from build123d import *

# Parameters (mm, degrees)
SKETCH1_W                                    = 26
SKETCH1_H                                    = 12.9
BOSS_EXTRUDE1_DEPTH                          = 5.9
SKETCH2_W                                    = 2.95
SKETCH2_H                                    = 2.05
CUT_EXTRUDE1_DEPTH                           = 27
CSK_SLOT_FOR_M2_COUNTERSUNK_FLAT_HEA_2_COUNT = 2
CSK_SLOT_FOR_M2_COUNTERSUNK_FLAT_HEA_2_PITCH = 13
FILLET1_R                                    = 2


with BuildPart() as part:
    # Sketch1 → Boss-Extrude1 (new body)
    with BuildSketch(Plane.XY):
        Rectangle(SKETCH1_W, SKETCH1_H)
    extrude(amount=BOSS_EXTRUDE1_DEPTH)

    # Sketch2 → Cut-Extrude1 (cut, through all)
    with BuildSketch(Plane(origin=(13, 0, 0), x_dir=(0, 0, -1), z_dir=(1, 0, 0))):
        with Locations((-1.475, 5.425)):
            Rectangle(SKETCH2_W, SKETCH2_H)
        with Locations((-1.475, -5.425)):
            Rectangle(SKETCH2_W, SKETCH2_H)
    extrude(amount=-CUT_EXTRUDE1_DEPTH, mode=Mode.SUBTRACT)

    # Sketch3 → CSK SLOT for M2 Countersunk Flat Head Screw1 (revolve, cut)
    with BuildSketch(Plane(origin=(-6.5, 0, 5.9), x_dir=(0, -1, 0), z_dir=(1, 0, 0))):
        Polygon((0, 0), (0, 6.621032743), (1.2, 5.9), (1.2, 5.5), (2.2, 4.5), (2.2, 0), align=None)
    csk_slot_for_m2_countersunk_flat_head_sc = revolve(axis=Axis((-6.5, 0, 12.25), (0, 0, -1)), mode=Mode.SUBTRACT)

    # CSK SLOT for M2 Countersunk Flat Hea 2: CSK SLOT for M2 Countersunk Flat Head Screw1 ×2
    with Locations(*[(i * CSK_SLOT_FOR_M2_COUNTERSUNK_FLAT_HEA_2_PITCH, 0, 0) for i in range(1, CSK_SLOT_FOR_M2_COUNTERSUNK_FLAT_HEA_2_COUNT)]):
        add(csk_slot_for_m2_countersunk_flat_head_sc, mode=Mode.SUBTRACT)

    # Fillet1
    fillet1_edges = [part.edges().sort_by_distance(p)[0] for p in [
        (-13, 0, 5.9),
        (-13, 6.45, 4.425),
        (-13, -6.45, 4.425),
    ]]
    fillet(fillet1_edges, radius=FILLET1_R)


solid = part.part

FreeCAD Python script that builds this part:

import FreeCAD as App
import Part
import Sketcher
from FreeCAD import Vector
Q = App.Units.Quantity


def edges_at(feature, points):
    """Names of the edges that pass closest to the given points."""
    edges = feature.Shape.Edges
    near = lambda p: min(range(len(edges)), key=lambda i: edges[i].distToShape(Part.Vertex(*p))[0])
    return sorted({f"Edge{near(p) + 1}" for p in points})

doc = App.newDocument("Part")
body = doc.addObject("PartDesign::Body", "Body")

# Sketch on XY plane
sketch1 = body.newObject("Sketcher::SketchObject", "Sketch")
sketch1.AttachmentSupport = (doc.getObject("XY_Plane"), [""])
sketch1.MapMode = "FlatFace"
sketch1.addGeometry([
    Part.LineSegment(Vector(-13, 6.45, 0), Vector(-13, -6.45, 0)),
    Part.LineSegment(Vector(-13, -6.45, 0), Vector(13, -6.45, 0)),
    Part.LineSegment(Vector(13, -6.45, 0), Vector(13, 6.45, 0)),
    Part.LineSegment(Vector(13, 6.45, 0), Vector(-13, 6.45, 0)),
], False)
sketch1.addConstraint([
    Sketcher.Constraint("Coincident", 0, 2, 1, 1),
    Sketcher.Constraint("Coincident", 1, 2, 2, 1),
    Sketcher.Constraint("Coincident", 2, 2, 3, 1),
    Sketcher.Constraint("Coincident", 3, 2, 0, 1),
    Sketcher.Constraint("Vertical", 0),
    Sketcher.Constraint("Horizontal", 1),
    Sketcher.Constraint("Vertical", 2),
    Sketcher.Constraint("Horizontal", 3),
    Sketcher.Constraint("Symmetric", 0, 2, 2, 2, -1, 1),
    Sketcher.Constraint("DistanceX", 1, 1, 1, 2, Q("26 mm")),
    Sketcher.Constraint("DistanceY", 0, 2, 0, 1, Q("12.9 mm")),
])
pad1 = body.newObject("PartDesign::Pad", "Pad")
pad1.Profile = sketch1
pad1.Length = 5.9

# Sketch on YZ plane
sketch2 = body.newObject("Sketcher::SketchObject", "Sketch001")
sketch2.AttachmentSupport = (doc.getObject("YZ_Plane"), [""])
sketch2.MapMode = "FlatFace"
sketch2.AttachmentOffset = App.Placement(Vector(0, 0, 13), App.Rotation())
sketch2.addGeometry([
    Part.LineSegment(Vector(6.45, 2.95, 0), Vector(4.4, 2.95, 0)),  # 0
    Part.LineSegment(Vector(4.4, 2.95, 0), Vector(4.4, 0, 0)),  # 1
    Part.LineSegment(Vector(4.4, 0, 0), Vector(6.45, 0, 0)),  # 2
    Part.LineSegment(Vector(6.45, 0, 0), Vector(6.45, 2.95, 0)),  # 3
    Part.LineSegment(Vector(-4.4, 2.95, 0), Vector(-6.45, 2.95, 0)),  # 4
    Part.LineSegment(Vector(-6.45, 2.95, 0), Vector(-6.45, 0, 0)),  # 5
    Part.LineSegment(Vector(-6.45, 0, 0), Vector(-4.4, 0, 0)),  # 6
    Part.LineSegment(Vector(-4.4, 0, 0), Vector(-4.4, 2.95, 0)),  # 7
], False)
sketch2.addConstraint([
    Sketcher.Constraint("Coincident", 0, 2, 1, 1),
    Sketcher.Constraint("Coincident", 1, 2, 2, 1),
    Sketcher.Constraint("Coincident", 2, 2, 3, 1),
    Sketcher.Constraint("Coincident", 3, 2, 0, 1),
    Sketcher.Constraint("Coincident", 4, 2, 5, 1),
    Sketcher.Constraint("Coincident", 5, 2, 6, 1),
    Sketcher.Constraint("Coincident", 6, 2, 7, 1),
    Sketcher.Constraint("Coincident", 7, 2, 4, 1),
    Sketcher.Constraint("Horizontal", 0),
    Sketcher.Constraint("Vertical", 1),
    Sketcher.Constraint("Horizontal", 2),
    Sketcher.Constraint("Vertical", 3),
    Sketcher.Constraint("Horizontal", 4),
    Sketcher.Constraint("Vertical", 5),
    Sketcher.Constraint("Horizontal", 6),
    Sketcher.Constraint("Vertical", 7),
    Sketcher.Constraint("Symmetric", 2, 2, 5, 2, -1, 1),
    Sketcher.Constraint("Symmetric", 1, 2, 6, 2, -2),
    Sketcher.Constraint("Horizontal", 3, 2, 4, 2),
    Sketcher.Constraint("DistanceX", 0, 2, 0, 1, Q("2.05 mm")),
    Sketcher.Constraint("DistanceY", 1, 2, 1, 1, Q("2.95 mm")),
    Sketcher.Constraint("DistanceX", -1, 1, 0, 2, Q("4.4 mm")),
])
pocket1 = body.newObject("PartDesign::Pocket", "Pocket")
pocket1.Profile = sketch2
pocket1.Type = "ThroughAll"

# Sketch on YZ plane
sketch3 = body.newObject("Sketcher::SketchObject", "Sketch002")
sketch3.AttachmentSupport = (doc.getObject("YZ_Plane"), [""])
sketch3.MapMode = "FlatFace"
sketch3.AttachmentOffset = App.Placement(Vector(0, 0, -6.5), App.Rotation())
sketch3.addGeometry([
    Part.LineSegment(Vector(0, -0.721033, 0), Vector(0, 5.9, 0)),  # 0
    Part.LineSegment(Vector(0, 5.9, 0), Vector(-2.2, 5.9, 0)),  # 1
    Part.LineSegment(Vector(-2.2, 5.9, 0), Vector(-2.2, 1.4, 0)),  # 2
    Part.LineSegment(Vector(-2.2, 1.4, 0), Vector(-1.2, 0.4, 0)),  # 3
    Part.LineSegment(Vector(-1.2, 0.4, 0), Vector(-1.2, 0, 0)),  # 4
    Part.LineSegment(Vector(-1.2, 0, 0), Vector(0, -0.721033, 0)),  # 5
], False)
sketch3.addConstraint([
    Sketcher.Constraint("Coincident", 0, 2, 1, 1),
    Sketcher.Constraint("Coincident", 1, 2, 2, 1),
    Sketcher.Constraint("Coincident", 2, 2, 3, 1),
    Sketcher.Constraint("Coincident", 3, 2, 4, 1),
    Sketcher.Constraint("Coincident", 4, 2, 5, 1),
    Sketcher.Constraint("Coincident", 5, 2, 0, 1),
    Sketcher.Constraint("Vertical", 0),
    Sketcher.Constraint("Horizontal", 1),
    Sketcher.Constraint("Vertical", 2),
    Sketcher.Constraint("Vertical", 4),
    Sketcher.Constraint("PointOnObject", 0, 2, -2),
    Sketcher.Constraint("PointOnObject", 4, 2, -1),
    Sketcher.Constraint("Angle", 3, Q("-45 deg")),
    Sketcher.Constraint("Angle", 5, Q("-31 deg")),
    Sketcher.Constraint("DistanceX", 1, 2, 1, 1, Q("2.2 mm")),
    Sketcher.Constraint("DistanceY", 2, 2, 2, 1, Q("4.5 mm")),
    Sketcher.Constraint("DistanceY", 4, 2, 4, 1, Q("0.4 mm")),
    Sketcher.Constraint("DistanceX", 2, 2, 3, 2, Q("1 mm")),
])
groove = body.newObject("PartDesign::Groove", "Groove")
groove.Profile = sketch3
groove.ReferenceAxis = (sketch3, ["V_Axis"])
groove.Angle = 360
doc.recompute()

linearpattern = body.newObject("PartDesign::LinearPattern", "LinearPattern")
linearpattern.Originals = [groove]
linearpattern.Direction = (doc.getObject("X_Axis"), [""])
linearpattern.Mode = "offset"
linearpattern.Offset = 13
linearpattern.Occurrences = 2
body.Tip = linearpattern
doc.recompute()

fillet = body.newObject("PartDesign::Fillet", "Fillet")
fillet.Base = (linearpattern, edges_at(linearpattern, [(-13, 0, 5.9), (-13, 6.45, 4.425), (-13, -6.45, 4.425)]))
fillet.Radius = 2

doc.recompute()
